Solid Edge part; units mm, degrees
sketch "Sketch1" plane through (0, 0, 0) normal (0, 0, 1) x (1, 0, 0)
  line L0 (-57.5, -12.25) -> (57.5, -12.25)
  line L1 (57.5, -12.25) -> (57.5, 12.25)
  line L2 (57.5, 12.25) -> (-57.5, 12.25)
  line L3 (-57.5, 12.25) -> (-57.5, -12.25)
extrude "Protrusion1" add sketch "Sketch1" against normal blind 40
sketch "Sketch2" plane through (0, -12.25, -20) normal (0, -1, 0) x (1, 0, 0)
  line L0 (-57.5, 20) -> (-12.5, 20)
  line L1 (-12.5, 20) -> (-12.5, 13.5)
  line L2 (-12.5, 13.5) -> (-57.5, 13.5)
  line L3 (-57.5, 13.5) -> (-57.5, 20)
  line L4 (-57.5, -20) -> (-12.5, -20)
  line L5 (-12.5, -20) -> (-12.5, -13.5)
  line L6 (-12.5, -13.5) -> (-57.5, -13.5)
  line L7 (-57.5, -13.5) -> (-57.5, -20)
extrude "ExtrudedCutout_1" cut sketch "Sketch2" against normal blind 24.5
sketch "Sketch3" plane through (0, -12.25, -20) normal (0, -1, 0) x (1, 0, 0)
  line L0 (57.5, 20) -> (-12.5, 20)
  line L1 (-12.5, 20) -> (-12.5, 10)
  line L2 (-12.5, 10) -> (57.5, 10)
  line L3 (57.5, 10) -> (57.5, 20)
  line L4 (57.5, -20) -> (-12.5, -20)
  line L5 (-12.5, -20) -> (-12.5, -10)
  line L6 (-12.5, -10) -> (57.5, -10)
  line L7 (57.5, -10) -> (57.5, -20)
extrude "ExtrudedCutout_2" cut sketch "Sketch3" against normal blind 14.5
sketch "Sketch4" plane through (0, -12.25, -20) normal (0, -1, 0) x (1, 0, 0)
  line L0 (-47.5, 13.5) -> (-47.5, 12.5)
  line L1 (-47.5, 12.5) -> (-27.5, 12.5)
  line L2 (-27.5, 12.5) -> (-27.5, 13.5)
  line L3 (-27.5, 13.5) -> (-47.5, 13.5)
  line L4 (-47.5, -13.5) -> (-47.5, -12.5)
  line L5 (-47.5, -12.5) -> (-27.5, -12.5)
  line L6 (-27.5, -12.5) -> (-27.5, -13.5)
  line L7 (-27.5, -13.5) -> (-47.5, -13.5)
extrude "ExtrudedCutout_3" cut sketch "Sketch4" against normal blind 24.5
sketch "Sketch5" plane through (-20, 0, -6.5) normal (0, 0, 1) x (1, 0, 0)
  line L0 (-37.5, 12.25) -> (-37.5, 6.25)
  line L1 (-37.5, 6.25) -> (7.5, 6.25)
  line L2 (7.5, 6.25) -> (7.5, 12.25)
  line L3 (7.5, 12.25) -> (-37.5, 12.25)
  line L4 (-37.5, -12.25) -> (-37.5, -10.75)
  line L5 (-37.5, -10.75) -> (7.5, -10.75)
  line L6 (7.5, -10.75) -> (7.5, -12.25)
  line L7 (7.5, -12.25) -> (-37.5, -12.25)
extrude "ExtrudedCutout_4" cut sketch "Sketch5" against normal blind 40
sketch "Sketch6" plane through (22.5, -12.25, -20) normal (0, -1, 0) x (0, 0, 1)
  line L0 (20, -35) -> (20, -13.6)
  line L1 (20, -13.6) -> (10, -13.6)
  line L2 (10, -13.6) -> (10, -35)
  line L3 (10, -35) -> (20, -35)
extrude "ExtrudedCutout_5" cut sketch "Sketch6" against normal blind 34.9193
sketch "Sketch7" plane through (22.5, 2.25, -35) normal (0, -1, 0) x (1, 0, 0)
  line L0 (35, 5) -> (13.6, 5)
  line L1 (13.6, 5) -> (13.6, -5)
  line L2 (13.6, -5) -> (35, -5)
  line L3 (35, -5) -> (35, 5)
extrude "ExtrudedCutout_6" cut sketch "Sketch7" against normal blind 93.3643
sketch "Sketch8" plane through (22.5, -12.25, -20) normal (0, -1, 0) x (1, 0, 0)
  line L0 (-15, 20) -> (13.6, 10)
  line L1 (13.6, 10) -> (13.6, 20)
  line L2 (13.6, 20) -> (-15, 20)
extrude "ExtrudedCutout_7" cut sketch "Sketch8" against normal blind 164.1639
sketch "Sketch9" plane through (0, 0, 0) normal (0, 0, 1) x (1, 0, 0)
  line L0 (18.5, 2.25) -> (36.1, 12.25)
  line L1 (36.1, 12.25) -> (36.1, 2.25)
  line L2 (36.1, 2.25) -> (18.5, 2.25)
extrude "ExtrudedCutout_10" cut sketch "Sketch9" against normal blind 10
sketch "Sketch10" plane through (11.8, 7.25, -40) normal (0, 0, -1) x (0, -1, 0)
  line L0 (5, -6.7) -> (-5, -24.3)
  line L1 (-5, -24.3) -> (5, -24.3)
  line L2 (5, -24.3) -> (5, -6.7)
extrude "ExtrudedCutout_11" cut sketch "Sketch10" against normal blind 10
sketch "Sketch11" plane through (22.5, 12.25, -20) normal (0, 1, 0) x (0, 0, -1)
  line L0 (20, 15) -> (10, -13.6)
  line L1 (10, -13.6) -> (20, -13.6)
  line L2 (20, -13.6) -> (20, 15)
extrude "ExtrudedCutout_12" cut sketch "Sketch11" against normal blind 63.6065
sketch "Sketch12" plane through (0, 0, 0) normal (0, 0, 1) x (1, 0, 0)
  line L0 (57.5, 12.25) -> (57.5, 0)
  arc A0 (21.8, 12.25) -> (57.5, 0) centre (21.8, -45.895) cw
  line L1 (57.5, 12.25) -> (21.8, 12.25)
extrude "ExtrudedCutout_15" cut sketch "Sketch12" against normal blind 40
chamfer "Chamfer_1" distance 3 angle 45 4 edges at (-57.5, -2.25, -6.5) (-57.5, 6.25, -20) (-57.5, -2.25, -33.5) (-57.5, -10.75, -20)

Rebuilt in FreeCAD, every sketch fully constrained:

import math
import FreeCAD as App
import Part
import Sketcher
from FreeCAD import Vector


def edges_at(feature, points):
    """Names of the edges that pass closest to the given points."""
    edges = feature.Shape.Edges
    near = lambda p: min(range(len(edges)), key=lambda i: edges[i].distToShape(Part.Vertex(*p))[0])
    return sorted({f"Edge{near(p) + 1}" for p in points})

doc = App.newDocument("Part")
body = doc.addObject("PartDesign::Body", "Body")

# Sketch on XY plane
sketch1 = body.newObject("Sketcher::SketchObject", "Sketch")
sketch1.AttachmentSupport = (doc.getObject("XY_Plane"), [""])
sketch1.MapMode = "FlatFace"
sketch1.addGeometry([
    Part.LineSegment(Vector(-58, 12, 0), Vector(-58, -12, 0)),
    Part.LineSegment(Vector(-58, -12, 0), Vector(58, -12, 0)),
    Part.LineSegment(Vector(58, -12, 0), Vector(58, 12, 0)),
    Part.LineSegment(Vector(58, 12, 0), Vector(-58, 12, 0)),
], False)
sketch1.addConstraint([
    Sketcher.Constraint("Coincident", 0, 2, 1, 1),
    Sketcher.Constraint("Coincident", 1, 2, 2, 1),
    Sketcher.Constraint("Coincident", 2, 2, 3, 1),
    Sketcher.Constraint("Coincident", 3, 2, 0, 1),
    Sketcher.Constraint("Vertical", 0),
    Sketcher.Constraint("Horizontal", 1),
    Sketcher.Constraint("Vertical", 2),
    Sketcher.Constraint("Horizontal", 3),
    Sketcher.Constraint("Symmetric", 0, 2, 2, 2, -1, 1),
    Sketcher.Constraint("DistanceX", 1, 1, 1, 2, 115.0),
    Sketcher.Constraint("DistanceY", 0, 2, 0, 1, 24.5),
])
pad1 = body.newObject("PartDesign::Pad", "Pad")
pad1.Profile = sketch1
pad1.Length = 40
pad1.Reversed = True

# Sketch on XZ plane
sketch2 = body.newObject("Sketcher::SketchObject", "Sketch001")
sketch2.AttachmentSupport = (doc.getObject("XZ_Plane"), [""])
sketch2.MapMode = "FlatFace"
sketch2.AttachmentOffset = App.Placement(Vector(0, 0, 12.25), App.Rotation())
sketch2.addGeometry([
    Part.LineSegment(Vector(-12, 0, 0), Vector(-58, 0, 0)),  # 0
    Part.LineSegment(Vector(-58, 0, 0), Vector(-58, -6, 0)),  # 1
    Part.LineSegment(Vector(-58, -6, 0), Vector(-12, -6, 0)),  # 2
    Part.LineSegment(Vector(-12, -6, 0), Vector(-12, 0, 0)),  # 3
    Part.LineSegment(Vector(-58, -34, 0), Vector(-58, -40, 0)),  # 4
    Part.LineSegment(Vector(-58, -40, 0), Vector(-12, -40, 0)),  # 5
    Part.LineSegment(Vector(-12, -40, 0), Vector(-12, -34, 0)),  # 6
    Part.LineSegment(Vector(-12, -34, 0), Vector(-58, -34, 0)),  # 7
], False)
sketch2.addConstraint([
    Sketcher.Constraint("Coincident", 0, 2, 1, 1),
    Sketcher.Constraint("Coincident", 1, 2, 2, 1),
    Sketcher.Constraint("Coincident", 2, 2, 3, 1),
    Sketcher.Constraint("Coincident", 3, 2, 0, 1),
    Sketcher.Constraint("Coincident", 4, 2, 5, 1),
    Sketcher.Constraint("Coincident", 5, 2, 6, 1),
    Sketcher.Constraint("Coincident", 6, 2, 7, 1),
    Sketcher.Constraint("Coincident", 7, 2, 4, 1),
    Sketcher.Constraint("Horizontal", 0),
    Sketcher.Constraint("Vertical", 1),
    Sketcher.Constraint("Horizontal", 2),
    Sketcher.Constraint("Vertical", 3),
    Sketcher.Constraint("Vertical", 4),
    Sketcher.Constraint("Horizontal", 5),
    Sketcher.Constraint("Vertical", 6),
    Sketcher.Constraint("Horizontal", 7),
    Sketcher.Constraint("PointOnObject", 0, 2, -1),
    Sketcher.Constraint("Vertical", 1, 2, 4, 2),
    Sketcher.Constraint("Vertical", 3, 2, 5, 2),
    Sketcher.Constraint("Equal", 3, 4),
    Sketcher.Constraint("DistanceX", 0, 2, 0, 1, 45.0),
    Sketcher.Constraint("DistanceY", 1, 2, 1, 1, 6.5),
    Sketcher.Constraint("DistanceY", 4, 2, -1, 1, 40.0),
    Sketcher.Constraint("DistanceX", 0, 2, -1, 1, 57.5),
])
pocket1 = body.newObject("PartDesign::Pocket", "Pocket")
pocket1.Profile = sketch2
pocket1.Length = 24.5

# Sketch on XZ plane
sketch3 = body.newObject("Sketcher::SketchObject", "Sketch002")
sketch3.AttachmentSupport = (doc.getObject("XZ_Plane"), [""])
sketch3.MapMode = "FlatFace"
sketch3.AttachmentOffset = App.Placement(Vector(0, 0, 12.25), App.Rotation())
sketch3.addGeometry([
    Part.LineSegment(Vector(58, -10, 0), Vector(58, 0, 0)),  # 0
    Part.LineSegment(Vector(58, 0, 0), Vector(-12, 0, 0)),  # 1
    Part.LineSegment(Vector(-12, 0, 0), Vector(-12, -10, 0)),  # 2
    Part.LineSegment(Vector(-12, -10, 0), Vector(58, -10, 0)),  # 3
    Part.LineSegment(Vector(-12, -40, 0), Vector(58, -40, 0)),  # 4
    Part.LineSegment(Vector(58, -40, 0), Vector(58, -30, 0)),  # 5
    Part.LineSegment(Vector(58, -30, 0), Vector(-12, -30, 0)),  # 6
    Part.LineSegment(Vector(-12, -30, 0), Vector(-12, -40, 0)),  # 7
], False)
sketch3.addConstraint([
    Sketcher.Constraint("Coincident", 0, 2, 1, 1),
    Sketcher.Constraint("Coincident", 1, 2, 2, 1),
    Sketcher.Constraint("Coincident", 2, 2, 3, 1),
    Sketcher.Constraint("Coincident", 3, 2, 0, 1),
    Sketcher.Constraint("Coincident", 4, 2, 5, 1),
    Sketcher.Constraint("Coincident", 5, 2, 6, 1),
    Sketcher.Constraint("Coincident", 6, 2, 7, 1),
    Sketcher.Constraint("Coincident", 7, 2, 4, 1),
    Sketcher.Constraint("Vertical", 0),
    Sketcher.Constraint("Horizontal", 1),
    Sketcher.Constraint("Vertical", 2),
    Sketcher.Constraint("Horizontal", 3),
    Sketcher.Constraint("Horizontal", 4),
    Sketcher.Constraint("Vertical", 5),
    Sketcher.Constraint("Horizontal", 6),
    Sketcher.Constraint("Vertical", 7),
    Sketcher.Constraint("PointOnObject", 0, 2, -1),
    Sketcher.Constraint("Vertical", 3, 2, 4, 2),
    Sketcher.Constraint("Vertical", 2, 2, 6, 2),
    Sketcher.Constraint("Equal", 2, 5),
    Sketcher.Constraint("DistanceX", 1, 2, 1, 1, 70.0),
    Sketcher.Constraint("DistanceY", 0, 1, 0, 2, 10.0),
    Sketcher.Constraint("DistanceY", 4, 2, -1, 1, 40.0),
    Sketcher.Constraint("DistanceX", -1, 1, 0, 2, 57.5),
])
pocket2 = body.newObject("PartDesign::Pocket", "Pocket001")
pocket2.Profile = sketch3
pocket2.Length = 14.5

# Sketch on XZ plane
sketch4 = body.newObject("Sketcher::SketchObject", "Sketch003")
sketch4.AttachmentSupport = (doc.getObject("XZ_Plane"), [""])
sketch4.MapMode = "FlatFace"
sketch4.AttachmentOffset = App.Placement(Vector(0, 0, 12.25), App.Rotation())
sketch4.addGeometry([
    Part.LineSegment(Vector(-27.5, -6.5, 0), Vector(-47.5, -6.5, 0)),  # 0
    Part.LineSegment(Vector(-47.5, -6.5, 0), Vector(-47.5, -7.5, 0)),  # 1
    Part.LineSegment(Vector(-47.5, -7.5, 0), Vector(-27.5, -7.5, 0)),  # 2
    Part.LineSegment(Vector(-27.5, -7.5, 0), Vector(-27.5, -6.5, 0)),  # 3
    Part.LineSegment(Vector(-47.5, -32.5, 0), Vector(-47.5, -33.5, 0)),  # 4
    Part.LineSegment(Vector(-47.5, -33.5, 0), Vector(-27.5, -33.5, 0)),  # 5
    Part.LineSegment(Vector(-27.5, -33.5, 0), Vector(-27.5, -32.5, 0)),  # 6
    Part.LineSegment(Vector(-27.5, -32.5, 0), Vector(-47.5, -32.5, 0)),  # 7
], False)
sketch4.addConstraint([
    Sketcher.Constraint("Coincident", 0, 2, 1, 1),
    Sketcher.Constraint("Coincident", 1, 2, 2, 1),
    Sketcher.Constraint("Coincident", 2, 2, 3, 1),
    Sketcher.Constraint("Coincident", 3, 2, 0, 1),
    Sketcher.Constraint("Coincident", 4, 2, 5, 1),
    Sketcher.Constraint("Coincident", 5, 2, 6, 1),
    Sketcher.Constraint("Coincident", 6, 2, 7, 1),
    Sketcher.Constraint("Coincident", 7, 2, 4, 1),
    Sketcher.Constraint("Horizontal", 0),
    Sketcher.Constraint("Vertical", 1),
    Sketcher.Constraint("Horizontal", 2),
    Sketcher.Constraint("Vertical", 3),
    Sketcher.Constraint("Vertical", 4),
    Sketcher.Constraint("Horizontal", 5),
    Sketcher.Constraint("Vertical", 6),
    Sketcher.Constraint("Horizontal", 7),
    Sketcher.Constraint("Vertical", 1, 2, 4, 2),
    Sketcher.Constraint("Vertical", 3, 2, 5, 2),
    Sketcher.Constraint("Equal", 3, 4),
    Sketcher.Constraint("DistanceX", 0, 2, 0, 1, 20.0),
    Sketcher.Constraint("DistanceY", 1, 2, 1, 1, 1.0),
    Sketcher.Constraint("DistanceY", 4, 2, 1, 2, 26.0),
    Sketcher.Constraint("DistanceX", 0, 2, -1, 1, 47.5),
    Sketcher.Constraint("DistanceY", 0, 2, -1, 1, 6.5),
])
pocket3 = body.newObject("PartDesign::Pocket", "Pocket002")
pocket3.Profile = sketch4
pocket3.Length = 24.5

# Sketch on XY plane
sketch5 = body.newObject("Sketcher::SketchObject", "Sketch004")
sketch5.AttachmentSupport = (doc.getObject("XY_Plane"), [""])
sketch5.MapMode = "FlatFace"
sketch5.AttachmentOffset = App.Placement(Vector(0, 0, -6.5), App.Rotation())
sketch5.addGeometry([
    Part.LineSegment(Vector(-12.5, 12.2, 0), Vector(-57.5, 12.2, 0)),  # 0
    Part.LineSegment(Vector(-57.5, 12.2, 0), Vector(-57.5, 6.2, 0)),  # 1
    Part.LineSegment(Vector(-57.5, 6.2, 0), Vector(-12.5, 6.2, 0)),  # 2
    Part.LineSegment(Vector(-12.5, 6.2, 0), Vector(-12.5, 12.2, 0)),  # 3
    Part.LineSegment(Vector(-57.5, -10.8, 0), Vector(-57.5, -12.2, 0)),  # 4
    Part.LineSegment(Vector(-57.5, -12.2, 0), Vector(-12.5, -12.2, 0)),  # 5
    Part.LineSegment(Vector(-12.5, -12.2, 0), Vector(-12.5, -10.8, 0)),  # 6
    Part.LineSegment(Vector(-12.5, -10.8, 0), Vector(-57.5, -10.8, 0)),  # 7
], False)
sketch5.addConstraint([
    Sketcher.Constraint("Coincident", 0, 2, 1, 1),
    Sketcher.Constraint("Coincident", 1, 2, 2, 1),
    Sketcher.Constraint("Coincident", 2, 2, 3, 1),
    Sketcher.Constraint("Coincident", 3, 2, 0, 1),
    Sketcher.Constraint("Coincident", 4, 2, 5, 1),
    Sketcher.Constraint("Coincident", 5, 2, 6, 1),
    Sketcher.Constraint("Coincident", 6, 2, 7, 1),
    Sketcher.Constraint("Coincident", 7, 2, 4, 1),
    Sketcher.Constraint("Horizontal", 0),
    Sketcher.Constraint("Vertical", 1),
    Sketcher.Constraint("Horizontal", 2),
    Sketcher.Constraint("Vertical", 3),
    Sketcher.Constraint("Vertical", 4),
    Sketcher.Constraint("Horizontal", 5),
    Sketcher.Constraint("Vertical", 6),
    Sketcher.Constraint("Horizontal", 7),
    Sketcher.Constraint("Symmetric", 0, 2, 4, 2, -1),
    Sketcher.Constraint("Vertical", 3, 2, 5, 2),
    Sketcher.Constraint("DistanceX", 0, 2, 0, 1, 45.0),
    Sketcher.Constraint("DistanceY", 1, 2, 1, 1, 6.0),
    Sketcher.Constraint("DistanceY", 4, 2, 4, 1, 1.5),
    Sketcher.Constraint("DistanceY", 6, 2, 2, 2, 17.0),
    Sketcher.Constraint("DistanceX", 0, 2, -1, 1, 57.5),
])
pocket4 = body.newObject("PartDesign::Pocket", "Pocket003")
pocket4.Profile = sketch5
pocket4.Length = 40

# Sketch on XZ plane
sketch6 = body.newObject("Sketcher::SketchObject", "Sketch005")
sketch6.AttachmentSupport = (doc.getObject("XZ_Plane"), [""])
sketch6.MapMode = "FlatFace"
sketch6.AttachmentOffset = App.Placement(Vector(0, 0, 12.25), App.Rotation())
sketch6.addGeometry([
    Part.LineSegment(Vector(58, -10, 0), Vector(58, 0, 0)),
    Part.LineSegment(Vector(58, 0, 0), Vector(36, 0, 0)),
    Part.LineSegment(Vector(36, 0, 0), Vector(36, -10, 0)),
    Part.LineSegment(Vector(36, -10, 0), Vector(58, -10, 0)),
], False)
sketch6.addConstraint([
    Sketcher.Constraint("Coincident", 0, 2, 1, 1),
    Sketcher.Constraint("Coincident", 1, 2, 2, 1),
    Sketcher.Constraint("Coincident", 2, 2, 3, 1),
    Sketcher.Constraint("Coincident", 3, 2, 0, 1),
    Sketcher.Constraint("Vertical", 0),
    Sketcher.Constraint("Horizontal", 1),
    Sketcher.Constraint("Vertical", 2),
    Sketcher.Constraint("Horizontal", 3),
    Sketcher.Constraint("PointOnObject", 0, 2, -1),
    Sketcher.Constraint("DistanceY", 0, 1, 0, 2, 10.0),
    Sketcher.Constraint("DistanceX", 1, 2, 1, 1, 21.4),
    Sketcher.Constraint("DistanceX", -1, 1, 0, 2, 57.5),
])
pocket5 = body.newObject("PartDesign::Pocket", "Pocket004")
pocket5.Profile = sketch6
pocket5.Length = 34.9193

# Sketch on XZ plane
sketch7 = body.newObject("Sketcher::SketchObject", "Sketch006")
sketch7.AttachmentSupport = (doc.getObject("XZ_Plane"), [""])
sketch7.MapMode = "FlatFace"
sketch7.AttachmentOffset = App.Placement(Vector(0, 0, -2.25), App.Rotation())
sketch7.addGeometry([
    Part.LineSegment(Vector(58, -40, 0), Vector(58, -30, 0)),
    Part.LineSegment(Vector(58, -30, 0), Vector(36, -30, 0)),
    Part.LineSegment(Vector(36, -30, 0), Vector(36, -40, 0)),
    Part.LineSegment(Vector(36, -40, 0), Vector(58, -40, 0)),
], False)
sketch7.addConstraint([
    Sketcher.Constraint("Coincident", 0, 2, 1, 1),
    Sketcher.Constraint("Coincident", 1, 2, 2, 1),
    Sketcher.Constraint("Coincident", 2, 2, 3, 1),
    Sketcher.Constraint("Coincident", 3, 2, 0, 1),
    Sketcher.Constraint("Vertical", 0),
    Sketcher.Constraint("Horizontal", 1),
    Sketcher.Constraint("Vertical", 2),
    Sketcher.Constraint("Horizontal", 3),
    Sketcher.Constraint("DistanceY", 0, 1, 0, 2, 10.0),
    Sketcher.Constraint("DistanceX", 1, 2, 1, 1, 21.4),
    Sketcher.Constraint("DistanceY", 0, 2, -1, 1, 30.0),
    Sketcher.Constraint("DistanceX", -1, 1, 0, 2, 57.5),
])
pocket6 = body.newObject("PartDesign::Pocket", "Pocket005")
pocket6.Profile = sketch7
pocket6.Length = 93.3643

# Sketch on XZ plane
sketch8 = body.newObject("Sketcher::SketchObject", "Sketch007")
sketch8.AttachmentSupport = (doc.getObject("XZ_Plane"), [""])
sketch8.MapMode = "FlatFace"
sketch8.AttachmentOffset = App.Placement(Vector(0, 0, 12.25), App.Rotation())
sketch8.addGeometry([
    Part.LineSegment(Vector(36, 0, 0), Vector(8, 0, 0)),
    Part.LineSegment(Vector(8, 0, 0), Vector(36, -10, 0)),
    Part.LineSegment(Vector(36, -10, 0), Vector(36, 0, 0)),
], False)
sketch8.addConstraint([
    Sketcher.Constraint("Coincident", 0, 2, 1, 1),
    Sketcher.Constraint("Coincident", 1, 2, 2, 1),
    Sketcher.Constraint("Coincident", 2, 2, 0, 1),
    Sketcher.Constraint("Horizontal", 0),
    Sketcher.Constraint("Vertical", 2),
    Sketcher.Constraint("PointOnObject", 0, 2, -1),
    Sketcher.Constraint("DistanceY", 2, 1, 2, 2, 10.0),
    Sketcher.Constraint("DistanceX", 0, 2, 0, 1, 28.6),
    Sketcher.Constraint("DistanceX", -1, 1, 0, 2, 7.5),
])
pocket7 = body.newObject("PartDesign::Pocket", "Pocket006")
pocket7.Profile = sketch8
pocket7.Length = 164.1639

# Sketch on XY plane
sketch9 = body.newObject("Sketcher::SketchObject", "Sketch008")
sketch9.AttachmentSupport = (doc.getObject("XY_Plane"), [""])
sketch9.MapMode = "FlatFace"
sketch9.addGeometry([
    Part.LineSegment(Vector(36, 12, 0), Vector(18, 2, 0)),
    Part.LineSegment(Vector(18, 2, 0), Vector(36, 2, 0)),
    Part.LineSegment(Vector(36, 2, 0), Vector(36, 12, 0)),
], False)
sketch9.addConstraint([
    Sketcher.Constraint("Coincident", 0, 2, 1, 1),
    Sketcher.Constraint("Coincident", 1, 2, 2, 1),
    Sketcher.Constraint("Coincident", 2, 2, 0, 1),
    Sketcher.Constraint("Horizontal", 1),
    Sketcher.Constraint("Vertical", 2),
    Sketcher.Constraint("DistanceY", 2, 1, 2, 2, 10.0),
    Sketcher.Constraint("DistanceX", 1, 1, 1, 2, 17.6),
    Sketcher.Constraint("DistanceX", -1, 1, 0, 2, 18.5),
    Sketcher.Constraint("DistanceY", -1, 1, 0, 2, 2.25),
])
pocket8 = body.newObject("PartDesign::Pocket", "Pocket007")
pocket8.Profile = sketch9
pocket8.Length = 10

# Sketch on XY plane
sketch10 = body.newObject("Sketcher::SketchObject", "Sketch009")
sketch10.AttachmentSupport = (doc.getObject("XY_Plane"), [""])
sketch10.MapMode = "FlatFace"
sketch10.AttachmentOffset = App.Placement(Vector(0, 0, -40), App.Rotation())
sketch10.addGeometry([
    Part.LineSegment(Vector(36, 2, 0), Vector(18, 2, 0)),
    Part.LineSegment(Vector(18, 2, 0), Vector(36, 12, 0)),
    Part.LineSegment(Vector(36, 12, 0), Vector(36, 2, 0)),
], False)
sketch10.addConstraint([
    Sketcher.Constraint("Coincident", 0, 2, 1, 1),
    Sketcher.Constraint("Coincident", 1, 2, 2, 1),
    Sketcher.Constraint("Coincident", 2, 2, 0, 1),
    Sketcher.Constraint("Horizontal", 0),
    Sketcher.Constraint("Vertical", 2),
    Sketcher.Constraint("DistanceY", 2, 2, 2, 1, 10.0),
    Sketcher.Constraint("DistanceX", 0, 2, 0, 1, 17.6),
    Sketcher.Constraint("DistanceX", -1, 1, 0, 2, 18.5),
    Sketcher.Constraint("DistanceY", -1, 1, 0, 2, 2.25),
])
pocket9 = body.newObject("PartDesign::Pocket", "Pocket008")
pocket9.Profile = sketch10
pocket9.Length = 10
pocket9.Reversed = True

# Sketch on XZ plane
sketch11 = body.newObject("Sketcher::SketchObject", "Sketch010")
sketch11.AttachmentSupport = (doc.getObject("XZ_Plane"), [""])
sketch11.MapMode = "FlatFace"
sketch11.AttachmentOffset = App.Placement(Vector(0, 0, -12.25), App.Rotation())
sketch11.addGeometry([
    Part.LineSegment(Vector(36, -40, 0), Vector(8, -40, 0)),
    Part.LineSegment(Vector(8, -40, 0), Vector(36, -30, 0)),
    Part.LineSegment(Vector(36, -30, 0), Vector(36, -40, 0)),
], False)
sketch11.addConstraint([
    Sketcher.Constraint("Coincident", 0, 2, 1, 1),
    Sketcher.Constraint("Coincident", 1, 2, 2, 1),
    Sketcher.Constraint("Coincident", 2, 2, 0, 1),
    Sketcher.Constraint("Horizontal", 0),
    Sketcher.Constraint("Vertical", 2),
    Sketcher.Constraint("DistanceY", 2, 2, 2, 1, 10.0),
    Sketcher.Constraint("DistanceX", 0, 2, 0, 1, 28.6),
    Sketcher.Constraint("DistanceY", 0, 2, -1, 1, 40.0),
    Sketcher.Constraint("DistanceX", -1, 1, 0, 2, 7.5),
])
pocket10 = body.newObject("PartDesign::Pocket", "Pocket009")
pocket10.Profile = sketch11
pocket10.Length = 63.6065
pocket10.Reversed = True

# Sketch on XY plane
sketch12 = body.newObject("Sketcher::SketchObject", "Sketch011")
sketch12.AttachmentSupport = (doc.getObject("XY_Plane"), [""])
sketch12.MapMode = "FlatFace"
sketch12.addGeometry([
    Part.LineSegment(Vector(58, 0, 0), Vector(58, 12, 0)),
    Part.LineSegment(Vector(58, 12, 0), Vector(22, 12, 0)),
    Part.ArcOfCircle(Part.Circle(Vector(22, -46, 0), Vector(0, 0, 1), 58), math.radians(52), math.radians(90)),
], False)
sketch12.addConstraint([
    Sketcher.Constraint("Coincident", 0, 2, 1, 1),
    Sketcher.Constraint("Tangent", 1, 2, 2, 2),
    Sketcher.Constraint("Coincident", 2, 1, 0, 1),
    Sketcher.Constraint("Vertical", 0),
    Sketcher.Constraint("Horizontal", 1),
    Sketcher.Constraint("PointOnObject", 2, 1, -1),
    Sketcher.Constraint("DistanceX", 1, 2, 1, 1, 35.7),
    Sketcher.Constraint("Radius", 2, 58.145),
    Sketcher.Constraint("DistanceX", -1, 1, 2, 3, 21.8),
])
pocket11 = body.newObject("PartDesign::Pocket", "Pocket010")
pocket11.Profile = sketch12
pocket11.Length = 40
doc.recompute()

chamfer = body.newObject("PartDesign::Chamfer", "Chamfer")
chamfer.Base = (pocket11, edges_at(pocket11, [
    (-57.5, -2.25, -6.5),
    (-57.5, 6.25, -20),
    (-57.5, -2.25, -33.5),
    (-57.5, -10.75, -20),
]))
chamfer.Size = 3

doc.recompute()
